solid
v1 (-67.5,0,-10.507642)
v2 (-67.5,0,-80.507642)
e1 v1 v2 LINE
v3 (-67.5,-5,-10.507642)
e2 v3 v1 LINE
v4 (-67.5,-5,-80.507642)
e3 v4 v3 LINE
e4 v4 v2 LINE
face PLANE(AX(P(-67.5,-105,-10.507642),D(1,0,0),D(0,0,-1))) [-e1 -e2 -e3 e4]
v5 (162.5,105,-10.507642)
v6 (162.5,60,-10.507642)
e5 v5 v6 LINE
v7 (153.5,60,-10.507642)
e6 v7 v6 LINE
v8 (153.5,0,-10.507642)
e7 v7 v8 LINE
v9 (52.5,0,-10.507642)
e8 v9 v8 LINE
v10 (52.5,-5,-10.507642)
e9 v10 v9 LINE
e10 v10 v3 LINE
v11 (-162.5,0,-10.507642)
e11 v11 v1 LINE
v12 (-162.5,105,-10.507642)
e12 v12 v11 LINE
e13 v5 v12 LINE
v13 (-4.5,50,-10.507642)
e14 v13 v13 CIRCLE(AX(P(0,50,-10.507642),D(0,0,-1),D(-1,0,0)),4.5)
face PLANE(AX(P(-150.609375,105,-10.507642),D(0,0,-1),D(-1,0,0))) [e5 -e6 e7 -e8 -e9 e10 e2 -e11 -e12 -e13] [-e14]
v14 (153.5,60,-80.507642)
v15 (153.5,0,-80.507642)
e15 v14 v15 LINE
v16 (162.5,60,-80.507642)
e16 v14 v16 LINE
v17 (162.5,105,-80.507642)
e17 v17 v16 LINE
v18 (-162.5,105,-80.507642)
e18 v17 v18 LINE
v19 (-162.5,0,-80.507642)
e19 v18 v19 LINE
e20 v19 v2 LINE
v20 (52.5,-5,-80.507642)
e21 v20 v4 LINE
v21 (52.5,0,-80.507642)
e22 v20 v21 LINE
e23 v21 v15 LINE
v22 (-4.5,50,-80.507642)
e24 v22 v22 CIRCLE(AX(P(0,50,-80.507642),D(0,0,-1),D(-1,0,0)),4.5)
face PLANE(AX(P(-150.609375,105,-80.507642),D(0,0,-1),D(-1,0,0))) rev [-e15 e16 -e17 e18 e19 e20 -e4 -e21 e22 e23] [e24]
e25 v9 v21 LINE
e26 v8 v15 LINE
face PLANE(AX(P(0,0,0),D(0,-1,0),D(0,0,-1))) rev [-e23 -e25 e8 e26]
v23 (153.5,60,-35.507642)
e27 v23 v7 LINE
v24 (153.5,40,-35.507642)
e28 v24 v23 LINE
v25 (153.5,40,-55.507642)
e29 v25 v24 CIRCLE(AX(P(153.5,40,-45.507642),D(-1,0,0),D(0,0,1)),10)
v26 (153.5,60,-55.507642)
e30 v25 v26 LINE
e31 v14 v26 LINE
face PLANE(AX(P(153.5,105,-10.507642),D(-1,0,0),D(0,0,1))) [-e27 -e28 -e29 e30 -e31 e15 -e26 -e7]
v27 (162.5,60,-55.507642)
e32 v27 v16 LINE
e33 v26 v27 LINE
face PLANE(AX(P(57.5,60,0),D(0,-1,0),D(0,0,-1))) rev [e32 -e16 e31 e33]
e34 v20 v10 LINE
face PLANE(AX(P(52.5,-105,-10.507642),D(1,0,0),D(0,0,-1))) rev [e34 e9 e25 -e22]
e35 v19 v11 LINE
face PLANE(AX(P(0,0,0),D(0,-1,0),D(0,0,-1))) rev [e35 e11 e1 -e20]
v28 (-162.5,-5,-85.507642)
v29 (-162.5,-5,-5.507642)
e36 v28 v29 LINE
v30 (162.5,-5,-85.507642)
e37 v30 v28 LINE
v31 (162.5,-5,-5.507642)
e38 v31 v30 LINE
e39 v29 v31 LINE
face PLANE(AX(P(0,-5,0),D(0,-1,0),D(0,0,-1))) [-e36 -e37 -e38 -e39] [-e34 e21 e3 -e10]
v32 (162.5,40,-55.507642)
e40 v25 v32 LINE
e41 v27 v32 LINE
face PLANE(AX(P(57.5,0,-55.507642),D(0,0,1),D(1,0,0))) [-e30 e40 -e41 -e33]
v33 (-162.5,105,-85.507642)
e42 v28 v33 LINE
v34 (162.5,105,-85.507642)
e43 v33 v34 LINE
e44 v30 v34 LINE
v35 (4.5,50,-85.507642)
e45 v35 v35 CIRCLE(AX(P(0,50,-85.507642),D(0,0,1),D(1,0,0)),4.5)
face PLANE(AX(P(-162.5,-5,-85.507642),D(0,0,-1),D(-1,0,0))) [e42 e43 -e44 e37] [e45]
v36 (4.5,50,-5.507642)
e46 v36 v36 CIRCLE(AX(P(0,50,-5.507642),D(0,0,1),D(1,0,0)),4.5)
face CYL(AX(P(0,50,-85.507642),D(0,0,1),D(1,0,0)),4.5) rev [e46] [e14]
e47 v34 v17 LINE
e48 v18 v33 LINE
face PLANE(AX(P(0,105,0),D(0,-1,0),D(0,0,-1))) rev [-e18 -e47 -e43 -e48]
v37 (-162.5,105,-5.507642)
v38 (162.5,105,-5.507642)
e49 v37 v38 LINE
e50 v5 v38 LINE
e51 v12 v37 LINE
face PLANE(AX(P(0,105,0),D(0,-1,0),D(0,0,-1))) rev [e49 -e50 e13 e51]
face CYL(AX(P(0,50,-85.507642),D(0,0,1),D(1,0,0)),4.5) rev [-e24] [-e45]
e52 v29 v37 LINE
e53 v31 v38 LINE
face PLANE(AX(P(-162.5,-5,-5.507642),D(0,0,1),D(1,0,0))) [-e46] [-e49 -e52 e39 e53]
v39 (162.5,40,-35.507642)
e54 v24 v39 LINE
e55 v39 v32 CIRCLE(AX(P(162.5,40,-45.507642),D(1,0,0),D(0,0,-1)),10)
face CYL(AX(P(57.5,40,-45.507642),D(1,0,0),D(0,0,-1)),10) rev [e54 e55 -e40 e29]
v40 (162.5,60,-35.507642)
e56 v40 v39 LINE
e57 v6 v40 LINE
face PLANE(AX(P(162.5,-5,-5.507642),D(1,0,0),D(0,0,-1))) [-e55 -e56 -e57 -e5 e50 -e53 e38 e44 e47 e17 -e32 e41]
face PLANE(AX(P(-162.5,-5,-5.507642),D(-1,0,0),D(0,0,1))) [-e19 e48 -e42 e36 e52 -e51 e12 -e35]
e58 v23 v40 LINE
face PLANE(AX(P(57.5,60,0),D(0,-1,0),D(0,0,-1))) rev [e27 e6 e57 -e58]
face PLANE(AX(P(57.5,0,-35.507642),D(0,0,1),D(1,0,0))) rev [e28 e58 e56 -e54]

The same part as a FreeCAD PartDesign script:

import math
import FreeCAD as App
import Part
import Sketcher

V = App.Vector


def add_polygon(sketch, points):
    """Adds a closed chain of lines whose ends are joined by coincident constraints."""
    first, n = sketch.GeometryCount, len(points)
    for a, b in zip(points, points[1:] + points[:1]):
        sketch.addGeometry(Part.LineSegment(App.Vector(*a, 0), App.Vector(*b, 0)), False)
    for i in range(n):
        sketch.addConstraint(Sketcher.Constraint("Coincident", first + i, 2, first + (i + 1) % n, 1))

doc = App.newDocument("Part")
body = doc.addObject("PartDesign::Body", "Body")

sketch1 = body.newObject("Sketcher::SketchObject", "Sketch")
sketch1.AttachmentSupport = (doc.getObject("XZ_Plane"), [""])
sketch1.MapMode = "FlatFace"
add_polygon(sketch1, [(-162, -86), (-162, -6), (162, -6), (162, -86)])
sketch1.addConstraint(Sketcher.Constraint("Vertical", 0))
sketch1.addConstraint(Sketcher.Constraint("Horizontal", 1))
sketch1.addConstraint(Sketcher.Constraint("Vertical", 2))
sketch1.addConstraint(Sketcher.Constraint("Horizontal", 3))
sketch1.addConstraint(Sketcher.Constraint("DistanceX", 1, 1, 1, 2, 325.0))
sketch1.addConstraint(Sketcher.Constraint("DistanceY", 0, 1, 0, 2, 80.0))
sketch1.addConstraint(Sketcher.Constraint("DistanceX", 0, 2, -1, 1, 162.5))
sketch1.addConstraint(Sketcher.Constraint("DistanceY", 0, 2, -1, 1, 5.507642))
pad1 = body.newObject("PartDesign::Pad", "Pad")
pad1.Profile = sketch1
pad1.Length = 5

sketch2 = body.newObject("Sketcher::SketchObject", "Sketch001")
sketch2.AttachmentSupport = (doc.getObject("XZ_Plane"), [""])
sketch2.MapMode = "FlatFace"
add_polygon(sketch2, [(-162.5, -80.5), (153.5, -80.5), (153.5, -10.5), (-162.5, -10.5), (-162.5, -5.5), (162.5, -5.5), (162.5, -85.5), (-162.5, -85.5)])
sketch2.addConstraint(Sketcher.Constraint("Horizontal", 0))
sketch2.addConstraint(Sketcher.Constraint("Vertical", 1))
sketch2.addConstraint(Sketcher.Constraint("Horizontal", 2))
sketch2.addConstraint(Sketcher.Constraint("Vertical", 3))
sketch2.addConstraint(Sketcher.Constraint("Horizontal", 4))
sketch2.addConstraint(Sketcher.Constraint("Vertical", 5))
sketch2.addConstraint(Sketcher.Constraint("Horizontal", 6))
sketch2.addConstraint(Sketcher.Constraint("Vertical", 7))
sketch2.addConstraint(Sketcher.Constraint("Vertical", 3, 2, 6, 2))
sketch2.addConstraint(Sketcher.Constraint("Equal", 3, 7))
sketch2.addConstraint(Sketcher.Constraint("DistanceX", 0, 1, 0, 2, 316.0))
sketch2.addConstraint(Sketcher.Constraint("DistanceX", 4, 1, 4, 2, 325.0))
sketch2.addConstraint(Sketcher.Constraint("DistanceY", 1, 1, 1, 2, 70.0))
sketch2.addConstraint(Sketcher.Constraint("DistanceY", 3, 1, 3, 2, 5.0))
sketch2.addConstraint(Sketcher.Constraint("DistanceX", -1, 1, 0, 2, 153.5))
sketch2.addConstraint(Sketcher.Constraint("DistanceY", 0, 2, -1, 1, 80.507642))
pad2 = body.newObject("PartDesign::Pad", "Pad001")
pad2.Profile = sketch2
pad2.Length = 105
pad2.Reversed = True

sketch3 = body.newObject("Sketcher::SketchObject", "Sketch002")
sketch3.AttachmentSupport = (doc.getObject("XY_Plane"), [""])
sketch3.MapMode = "FlatFace"
sketch3.AttachmentOffset = App.Placement(V(0, 0, -5.507642), App.Rotation())
sketch3.addGeometry(Part.Circle(V(0, 50, 0), V(0, 0, 1), 4.5), False)
sketch3.addConstraint(Sketcher.Constraint("PointOnObject", 0, 3, -2))
sketch3.addConstraint(Sketcher.Constraint("Diameter", 0, 9.0))
sketch3.addConstraint(Sketcher.Constraint("DistanceY", -1, 1, 0, 3, 50.0))
pocket1 = body.newObject("PartDesign::Pocket", "Pocket")
pocket1.Profile = sketch3
pocket1.Type = "ThroughAll"
pocket1.Midplane = True

sketch4 = body.newObject("Sketcher::SketchObject", "Sketch003")
sketch4.AttachmentSupport = (doc.getObject("XZ_Plane"), [""])
sketch4.MapMode = "FlatFace"
add_polygon(sketch4, [(-68, -81), (-68, -11), (52, -11), (52, -81)])
sketch4.addConstraint(Sketcher.Constraint("Vertical", 0))
sketch4.addConstraint(Sketcher.Constraint("Horizontal", 1))
sketch4.addConstraint(Sketcher.Constraint("Vertical", 2))
sketch4.addConstraint(Sketcher.Constraint("Horizontal", 3))
sketch4.addConstraint(Sketcher.Constraint("DistanceX", 1, 1, 1, 2, 120.0))
sketch4.addConstraint(Sketcher.Constraint("DistanceY", 0, 1, 0, 2, 70.0))
sketch4.addConstraint(Sketcher.Constraint("DistanceX", 0, 2, -1, 1, 67.5))
sketch4.addConstraint(Sketcher.Constraint("DistanceY", 0, 2, -1, 1, 10.507642))
pocket2 = body.newObject("PartDesign::Pocket", "Pocket001")
pocket2.Profile = sketch4
pocket2.Length = 105
pocket2.Reversed = True

sketch5 = body.newObject("Sketcher::SketchObject", "Sketch004")
sketch5.AttachmentSupport = (doc.getObject("YZ_Plane"), [""])
sketch5.MapMode = "FlatFace"
sketch5.AttachmentOffset = App.Placement(V(0, 0, 162.5), App.Rotation())
sketch5.addGeometry(Part.LineSegment(V(105, -81, 0), V(105, -11, 0)), False)
sketch5.addGeometry(Part.LineSegment(V(105, -11, 0), V(60, -11, 0)), False)
sketch5.addGeometry(Part.LineSegment(V(60, -11, 0), V(60, -36, 0)), False)
sketch5.addGeometry(Part.LineSegment(V(60, -36, 0), V(40, -36, 0)), False)
sketch5.addGeometry(Part.ArcOfCircle(Part.Circle(V(40, -46, 0), V(0, 0, 1), 10), math.radians(90), math.radians(270)), False)
sketch5.addGeometry(Part.LineSegment(V(40, -56, 0), V(60, -56, 0)), False)
sketch5.addGeometry(Part.LineSegment(V(60, -56, 0), V(60, -81, 0)), False)
sketch5.addGeometry(Part.LineSegment(V(60, -81, 0), V(105, -81, 0)), False)
sketch5.addConstraint(Sketcher.Constraint("Coincident", 0, 2, 1, 1))
sketch5.addConstraint(Sketcher.Constraint("Coincident", 1, 2, 2, 1))
sketch5.addConstraint(Sketcher.Constraint("Coincident", 2, 2, 3, 1))
sketch5.addConstraint(Sketcher.Constraint("Tangent", 3, 2, 4, 1))
sketch5.addConstraint(Sketcher.Constraint("Tangent", 4, 2, 5, 1))
sketch5.addConstraint(Sketcher.Constraint("Coincident", 5, 2, 6, 1))
sketch5.addConstraint(Sketcher.Constraint("Coincident", 6, 2, 7, 1))
sketch5.addConstraint(Sketcher.Constraint("Coincident", 7, 2, 0, 1))
sketch5.addConstraint(Sketcher.Constraint("Vertical", 0))
sketch5.addConstraint(Sketcher.Constraint("Horizontal", 1))
sketch5.addConstraint(Sketcher.Constraint("Vertical", 2))
sketch5.addConstraint(Sketcher.Constraint("Horizontal", 3))
sketch5.addConstraint(Sketcher.Constraint("Horizontal", 5))
sketch5.addConstraint(Sketcher.Constraint("Vertical", 6))
sketch5.addConstraint(Sketcher.Constraint("Horizontal", 7))
sketch5.addConstraint(Sketcher.Constraint("Vertical", 2, 2, 5, 2))
sketch5.addConstraint(Sketcher.Constraint("Equal", 2, 6))
sketch5.addConstraint(Sketcher.Constraint("Radius", 4, 10.0))
sketch5.addConstraint(Sketcher.Constraint("DistanceX", 1, 2, 1, 1, 45.0))
sketch5.addConstraint(Sketcher.Constraint("DistanceX", 3, 2, 3, 1, 20.0))
sketch5.addConstraint(Sketcher.Constraint("DistanceY", 0, 1, 0, 2, 70.0))
sketch5.addConstraint(Sketcher.Constraint("DistanceX", -1, 1, 4, 3, 40.0))
sketch5.addConstraint(Sketcher.Constraint("DistanceY", 4, 3, -1, 1, 45.507642))
pocket3 = body.newObject("PartDesign::Pocket", "Pocket002")
pocket3.Profile = sketch5
pocket3.Length = 105

doc.recompute()
